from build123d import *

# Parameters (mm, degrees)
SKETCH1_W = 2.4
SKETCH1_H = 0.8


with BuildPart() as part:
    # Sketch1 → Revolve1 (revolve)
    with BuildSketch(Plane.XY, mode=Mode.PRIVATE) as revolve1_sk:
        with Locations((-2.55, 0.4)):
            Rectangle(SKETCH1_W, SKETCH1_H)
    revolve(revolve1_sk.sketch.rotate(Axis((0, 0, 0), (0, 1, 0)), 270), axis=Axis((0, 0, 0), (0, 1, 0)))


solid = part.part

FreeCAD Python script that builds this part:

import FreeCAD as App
import Part
import Sketcher

V = App.Vector
Q = App.Units.Quantity


def add_polygon(sketch, points):
    """Adds a closed chain of lines whose ends are joined by coincident constraints."""
    first, n = sketch.GeometryCount, len(points)
    for a, b in zip(points, points[1:] + points[:1]):
        sketch.addGeometry(Part.LineSegment(App.Vector(*a, 0), App.Vector(*b, 0)), False)
    for i in range(n):
        sketch.addConstraint(Sketcher.Constraint("Coincident", first + i, 2, first + (i + 1) % n, 1))

doc = App.newDocument("Part")
body = doc.addObject("PartDesign::Body", "Body")

sketch1 = doc.addObject("Sketcher::SketchObject", "Sketch")
body.addObject(sketch1)
sketch1.AttachmentSupport = (doc.XY_Plane, [""])
sketch1.MapMode = "FlatFace"
add_polygon(sketch1, [(-3.75, 0.8), (-3.75, 0), (-1.35, 0), (-1.35, 0.8)])
sketch1.addConstraint([
    Sketcher.Constraint("Vertical", 0),
    Sketcher.Constraint("Horizontal", 1),
    Sketcher.Constraint("Vertical", 2),
    Sketcher.Constraint("Horizontal", 3),
    Sketcher.Constraint("PointOnObject", 0, 2, -1),
    Sketcher.Constraint("DistanceX", 1, 1, 1, 2, Q("2.4 mm")),
    Sketcher.Constraint("DistanceY", 0, 2, 0, 1, Q("0.8 mm")),
    Sketcher.Constraint("DistanceX", 0, 2, -1, 1, Q("3.75 mm")),
])
revolution = doc.addObject("PartDesign::Revolution", "Revolution")
body.addObject(revolution)
revolution.Profile = sketch1
revolution.ReferenceAxis = (sketch1, ["V_Axis"])
revolution.Angle = 360

doc.recompute()
